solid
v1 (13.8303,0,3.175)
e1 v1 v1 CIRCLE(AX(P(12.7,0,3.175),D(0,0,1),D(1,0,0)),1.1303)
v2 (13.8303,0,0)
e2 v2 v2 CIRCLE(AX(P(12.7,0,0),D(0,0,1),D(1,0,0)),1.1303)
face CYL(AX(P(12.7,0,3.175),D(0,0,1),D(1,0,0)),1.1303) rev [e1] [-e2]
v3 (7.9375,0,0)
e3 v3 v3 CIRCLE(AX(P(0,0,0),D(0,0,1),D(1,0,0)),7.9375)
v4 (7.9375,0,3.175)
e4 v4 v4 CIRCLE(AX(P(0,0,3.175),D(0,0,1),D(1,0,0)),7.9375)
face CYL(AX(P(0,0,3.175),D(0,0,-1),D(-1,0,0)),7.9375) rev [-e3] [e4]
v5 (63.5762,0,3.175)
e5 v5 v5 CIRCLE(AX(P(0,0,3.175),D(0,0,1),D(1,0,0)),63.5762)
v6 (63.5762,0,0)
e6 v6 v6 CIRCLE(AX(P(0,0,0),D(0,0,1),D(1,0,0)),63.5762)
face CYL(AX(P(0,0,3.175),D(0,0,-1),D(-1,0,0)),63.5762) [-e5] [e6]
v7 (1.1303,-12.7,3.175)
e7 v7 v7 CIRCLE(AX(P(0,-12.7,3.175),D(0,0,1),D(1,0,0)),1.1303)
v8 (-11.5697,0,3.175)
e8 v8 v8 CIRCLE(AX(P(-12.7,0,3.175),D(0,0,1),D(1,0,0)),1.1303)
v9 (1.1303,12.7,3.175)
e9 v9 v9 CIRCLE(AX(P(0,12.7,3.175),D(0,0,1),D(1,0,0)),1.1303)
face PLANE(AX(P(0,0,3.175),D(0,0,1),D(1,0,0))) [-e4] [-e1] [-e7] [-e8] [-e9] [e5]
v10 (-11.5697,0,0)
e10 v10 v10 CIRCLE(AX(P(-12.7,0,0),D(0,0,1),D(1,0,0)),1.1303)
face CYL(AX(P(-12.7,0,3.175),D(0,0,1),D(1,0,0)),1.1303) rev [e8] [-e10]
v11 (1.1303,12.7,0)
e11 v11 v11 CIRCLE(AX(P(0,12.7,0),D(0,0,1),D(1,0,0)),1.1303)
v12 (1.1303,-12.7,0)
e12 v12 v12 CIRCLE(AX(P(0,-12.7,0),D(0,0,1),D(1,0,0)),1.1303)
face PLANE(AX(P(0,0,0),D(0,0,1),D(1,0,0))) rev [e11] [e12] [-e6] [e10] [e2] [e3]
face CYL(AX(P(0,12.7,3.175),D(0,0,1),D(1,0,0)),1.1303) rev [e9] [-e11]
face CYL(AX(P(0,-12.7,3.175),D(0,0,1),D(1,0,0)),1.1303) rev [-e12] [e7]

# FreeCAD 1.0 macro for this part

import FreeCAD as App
import Part
import Sketcher
Q = App.Units.Quantity

doc = App.newDocument("Part")
params = doc.addObject("Spreadsheet::Sheet", "Params")
for row, (alias, value) in enumerate([
    ("sketch1_diameter", "5.006 in"),
    ("sketch1_diameter2", "0.625 in"),
    ("pad1_length", "0.125 in"),
    ("sketch2_diameter", "0.089 in"),
    ("hole_diameter", "0.089 in"),
    ("hole_depth", "4 mm"),
], start=1):
    params.set(f"A{row}", alias)
    params.set(f"B{row}", "=" + value)
    params.setAlias(f"B{row}", alias)

body = doc.addObject("PartDesign::Body", "Body")

# Sketch on XY plane
sketch1 = doc.addObject("Sketcher::SketchObject", "Sketch")
body.addObject(sketch1)
sketch1.AttachmentSupport = (doc.XY_Plane, [""])
sketch1.MapMode = "FlatFace"
sketch1.addGeometry([
    Part.Circle(App.Vector(0, 0, 0), App.Vector(0, 0, 1), 63.5762),
    Part.Circle(App.Vector(0, 0, 0), App.Vector(0, 0, 1), 7.9375),
], False)
sketch1.addConstraint([
    Sketcher.Constraint("Coincident", 0, 3, -1, 1),
    Sketcher.Constraint("Coincident", 1, 3, -1, 1),
    Sketcher.Constraint("Diameter", 0, Q("5.006 in")),
    Sketcher.Constraint("Diameter", 1, Q("0.625 in")),
])
sketch1.setExpression("Constraints[2]", "Params.sketch1_diameter")
sketch1.setExpression("Constraints[3]", "Params.sketch1_diameter2")
pad1 = doc.addObject("PartDesign::Pad", "Pad")
body.addObject(pad1)
pad1.Profile = sketch1
pad1.setExpression("Length", "Params.pad1_length")

# Sketch on XY plane
sketch2 = doc.addObject("Sketcher::SketchObject", "Sketch001")
body.addObject(sketch2)
sketch2.AttachmentSupport = (doc.XY_Plane, [""])
sketch2.MapMode = "FlatFace"
sketch2.AttachmentOffset = App.Placement(App.Vector(0, 0, 0.125 * 25.4), App.Rotation())
sketch2.addGeometry([
    Part.Circle(App.Vector(0, 12.7, 0), App.Vector(0, 0, 1), 1.1303),
    Part.Circle(App.Vector(0, -12.7, 0), App.Vector(0, 0, 1), 1.1303),
    Part.Circle(App.Vector(12.7, 0, 0), App.Vector(0, 0, 1), 1.1303),
    Part.Circle(App.Vector(-12.7, 0, 0), App.Vector(0, 0, 1), 1.1303),
], False)
sketch2.addConstraint([
    Sketcher.Constraint("Equal", 0, 1),
    Sketcher.Constraint("Equal", 1, 2),
    Sketcher.Constraint("Equal", 2, 3),
    Sketcher.Constraint("Symmetric", 0, 3, 1, 3, -1, 1),
    Sketcher.Constraint("Symmetric", 2, 3, 3, 3, -1, 1),
    Sketcher.Constraint("PointOnObject", 0, 3, -2),
    Sketcher.Constraint("PointOnObject", 2, 3, -1),
    Sketcher.Constraint("Diameter", 0, Q("0.089 in")),
    Sketcher.Constraint("DistanceY", 1, 3, 0, 3, Q("1 in")),
    Sketcher.Constraint("DistanceX", 3, 3, 2, 3, Q("1 in")),
])
sketch2.setExpression("Constraints[7]", "Params.sketch2_diameter")
doc.recompute()
hole = doc.addObject("PartDesign::Hole", "Hole")
body.addObject(hole)
hole.Profile = sketch2
hole.ThreadType = "None"
hole.setExpression("Diameter", "Params.hole_diameter")
hole.DepthType = "Dimension"
hole.setExpression("Depth", "Params.hole_depth")
hole.DrillPoint = "Angled"
hole.DrillPointAngle = 118

doc.recompute()
